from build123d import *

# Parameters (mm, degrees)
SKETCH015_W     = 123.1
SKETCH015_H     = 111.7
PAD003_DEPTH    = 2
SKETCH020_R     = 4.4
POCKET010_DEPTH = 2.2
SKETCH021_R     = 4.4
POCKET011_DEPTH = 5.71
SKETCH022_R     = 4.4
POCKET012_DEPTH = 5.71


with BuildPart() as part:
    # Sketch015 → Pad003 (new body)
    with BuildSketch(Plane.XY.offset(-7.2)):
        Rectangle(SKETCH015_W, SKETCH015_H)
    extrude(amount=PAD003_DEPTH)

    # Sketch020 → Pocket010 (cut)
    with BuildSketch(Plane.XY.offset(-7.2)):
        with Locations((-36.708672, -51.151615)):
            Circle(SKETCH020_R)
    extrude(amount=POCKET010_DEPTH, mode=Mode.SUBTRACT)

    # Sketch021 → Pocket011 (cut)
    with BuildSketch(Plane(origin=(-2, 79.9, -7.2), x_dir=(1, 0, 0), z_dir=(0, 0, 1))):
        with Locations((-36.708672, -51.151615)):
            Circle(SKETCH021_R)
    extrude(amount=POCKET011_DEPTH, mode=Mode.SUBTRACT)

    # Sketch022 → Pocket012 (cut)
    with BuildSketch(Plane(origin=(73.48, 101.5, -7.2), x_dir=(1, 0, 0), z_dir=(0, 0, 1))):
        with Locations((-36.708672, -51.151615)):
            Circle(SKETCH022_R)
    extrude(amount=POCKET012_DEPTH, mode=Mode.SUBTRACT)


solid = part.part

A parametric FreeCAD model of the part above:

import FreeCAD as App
import Part
import Sketcher
from FreeCAD import Vector
Q = App.Units.Quantity

doc = App.newDocument("Part")
params = doc.addObject("Spreadsheet::Sheet", "Params")
for row, (alias, value) in enumerate([
    ("sketch1_width", "123.1 mm"),
    ("sketch1_height", "111.7 mm"),
    ("pad1_length", "2 mm"),
    ("sketch2_diameter", "8.8 mm"),
    ("pocket1_length", "2.2 mm"),
    ("sketch3_diameter", "8.8 mm"),
    ("pocket2_length", "5.71 mm"),
    ("sketch4_diameter", "8.8 mm"),
    ("pocket3_length", "5.71 mm"),
], start=1):
    params.set(f"A{row}", alias)
    params.set(f"B{row}", "=" + value)
    params.setAlias(f"B{row}", alias)

body = doc.addObject("PartDesign::Body", "Body")

# Sketch on XY plane
sketch1 = body.newObject("Sketcher::SketchObject", "Sketch")
sketch1.AttachmentSupport = (doc.getObject("XY_Plane"), [""])
sketch1.MapMode = "FlatFace"
sketch1.AttachmentOffset = App.Placement(Vector(0, 0, -7.2), App.Rotation())
sketch1.addGeometry(Part.LineSegment(Vector(-62, 56, 0), Vector(-62, -56, 0)), False)
sketch1.addGeometry(Part.LineSegment(Vector(-62, -56, 0), Vector(62, -56, 0)), False)
sketch1.addGeometry(Part.LineSegment(Vector(62, -56, 0), Vector(62, 56, 0)), False)
sketch1.addGeometry(Part.LineSegment(Vector(62, 56, 0), Vector(-62, 56, 0)), False)
sketch1.addConstraint(Sketcher.Constraint("Coincident", 0, 2, 1, 1))
sketch1.addConstraint(Sketcher.Constraint("Coincident", 1, 2, 2, 1))
sketch1.addConstraint(Sketcher.Constraint("Coincident", 2, 2, 3, 1))
sketch1.addConstraint(Sketcher.Constraint("Coincident", 3, 2, 0, 1))
sketch1.addConstraint(Sketcher.Constraint("Vertical", 0))
sketch1.addConstraint(Sketcher.Constraint("Horizontal", 1))
sketch1.addConstraint(Sketcher.Constraint("Vertical", 2))
sketch1.addConstraint(Sketcher.Constraint("Horizontal", 3))
sketch1.addConstraint(Sketcher.Constraint("Symmetric", 0, 2, 2, 2, -1, 1))
sketch1.addConstraint(Sketcher.Constraint("DistanceX", 1, 1, 1, 2, Q("123.1 mm")))
sketch1.addConstraint(Sketcher.Constraint("DistanceY", 0, 2, 0, 1, Q("111.7 mm")))
sketch1.setExpression("Constraints[9]", "Params.sketch1_width")
sketch1.setExpression("Constraints[10]", "Params.sketch1_height")
pad1 = body.newObject("PartDesign::Pad", "Pad")
pad1.Profile = sketch1
pad1.setExpression("Length", "Params.pad1_length")

# Sketch on XY plane
sketch2 = body.newObject("Sketcher::SketchObject", "Sketch001")
sketch2.AttachmentSupport = (doc.getObject("XY_Plane"), [""])
sketch2.MapMode = "FlatFace"
sketch2.AttachmentOffset = App.Placement(Vector(0, 0, -7.2), App.Rotation())
sketch2.addGeometry(Part.Circle(Vector(-36.7, -51.2, 0), Vector(0, 0, 1), 4.4), False)
sketch2.addConstraint(Sketcher.Constraint("Diameter", 0, Q("8.8 mm")))
sketch2.addConstraint(Sketcher.Constraint("DistanceX", 0, 3, -1, 1, Q("36.708672 mm")))
sketch2.addConstraint(Sketcher.Constraint("DistanceY", 0, 3, -1, 1, Q("51.151615 mm")))
sketch2.setExpression("Constraints[0]", "Params.sketch2_diameter")
pocket1 = body.newObject("PartDesign::Pocket", "Pocket")
pocket1.Profile = sketch2
pocket1.setExpression("Length", "Params.pocket1_length")
pocket1.Reversed = True

# Sketch on XY plane
sketch3 = body.newObject("Sketcher::SketchObject", "Sketch002")
sketch3.AttachmentSupport = (doc.getObject("XY_Plane"), [""])
sketch3.MapMode = "FlatFace"
sketch3.AttachmentOffset = App.Placement(Vector(0, 0, -7.2), App.Rotation())
sketch3.addGeometry(Part.Circle(Vector(-38.7, 28.7, 0), Vector(0, 0, 1), 4.4), False)
sketch3.addConstraint(Sketcher.Constraint("Diameter", 0, Q("8.8 mm")))
sketch3.addConstraint(Sketcher.Constraint("DistanceX", 0, 3, -1, 1, Q("38.708672 mm")))
sketch3.addConstraint(Sketcher.Constraint("DistanceY", -1, 1, 0, 3, Q("28.748385 mm")))
sketch3.setExpression("Constraints[0]", "Params.sketch3_diameter")
pocket2 = body.newObject("PartDesign::Pocket", "Pocket001")
pocket2.Profile = sketch3
pocket2.setExpression("Length", "Params.pocket2_length")
pocket2.Reversed = True

# Sketch on XY plane
sketch4 = body.newObject("Sketcher::SketchObject", "Sketch003")
sketch4.AttachmentSupport = (doc.getObject("XY_Plane"), [""])
sketch4.MapMode = "FlatFace"
sketch4.AttachmentOffset = App.Placement(Vector(0, 0, -7.2), App.Rotation())
sketch4.addGeometry(Part.Circle(Vector(36.8, 50.3, 0), Vector(0, 0, 1), 4.4), False)
sketch4.addConstraint(Sketcher.Constraint("Diameter", 0, Q("8.8 mm")))
sketch4.addConstraint(Sketcher.Constraint("DistanceX", -1, 1, 0, 3, Q("36.771328 mm")))
sketch4.addConstraint(Sketcher.Constraint("DistanceY", -1, 1, 0, 3, Q("50.348385 mm")))
sketch4.setExpression("Constraints[0]", "Params.sketch4_diameter")
pocket3 = body.newObject("PartDesign::Pocket", "Pocket002")
pocket3.Profile = sketch4
pocket3.setExpression("Length", "Params.pocket3_length")
pocket3.Reversed = True

doc.recompute()
